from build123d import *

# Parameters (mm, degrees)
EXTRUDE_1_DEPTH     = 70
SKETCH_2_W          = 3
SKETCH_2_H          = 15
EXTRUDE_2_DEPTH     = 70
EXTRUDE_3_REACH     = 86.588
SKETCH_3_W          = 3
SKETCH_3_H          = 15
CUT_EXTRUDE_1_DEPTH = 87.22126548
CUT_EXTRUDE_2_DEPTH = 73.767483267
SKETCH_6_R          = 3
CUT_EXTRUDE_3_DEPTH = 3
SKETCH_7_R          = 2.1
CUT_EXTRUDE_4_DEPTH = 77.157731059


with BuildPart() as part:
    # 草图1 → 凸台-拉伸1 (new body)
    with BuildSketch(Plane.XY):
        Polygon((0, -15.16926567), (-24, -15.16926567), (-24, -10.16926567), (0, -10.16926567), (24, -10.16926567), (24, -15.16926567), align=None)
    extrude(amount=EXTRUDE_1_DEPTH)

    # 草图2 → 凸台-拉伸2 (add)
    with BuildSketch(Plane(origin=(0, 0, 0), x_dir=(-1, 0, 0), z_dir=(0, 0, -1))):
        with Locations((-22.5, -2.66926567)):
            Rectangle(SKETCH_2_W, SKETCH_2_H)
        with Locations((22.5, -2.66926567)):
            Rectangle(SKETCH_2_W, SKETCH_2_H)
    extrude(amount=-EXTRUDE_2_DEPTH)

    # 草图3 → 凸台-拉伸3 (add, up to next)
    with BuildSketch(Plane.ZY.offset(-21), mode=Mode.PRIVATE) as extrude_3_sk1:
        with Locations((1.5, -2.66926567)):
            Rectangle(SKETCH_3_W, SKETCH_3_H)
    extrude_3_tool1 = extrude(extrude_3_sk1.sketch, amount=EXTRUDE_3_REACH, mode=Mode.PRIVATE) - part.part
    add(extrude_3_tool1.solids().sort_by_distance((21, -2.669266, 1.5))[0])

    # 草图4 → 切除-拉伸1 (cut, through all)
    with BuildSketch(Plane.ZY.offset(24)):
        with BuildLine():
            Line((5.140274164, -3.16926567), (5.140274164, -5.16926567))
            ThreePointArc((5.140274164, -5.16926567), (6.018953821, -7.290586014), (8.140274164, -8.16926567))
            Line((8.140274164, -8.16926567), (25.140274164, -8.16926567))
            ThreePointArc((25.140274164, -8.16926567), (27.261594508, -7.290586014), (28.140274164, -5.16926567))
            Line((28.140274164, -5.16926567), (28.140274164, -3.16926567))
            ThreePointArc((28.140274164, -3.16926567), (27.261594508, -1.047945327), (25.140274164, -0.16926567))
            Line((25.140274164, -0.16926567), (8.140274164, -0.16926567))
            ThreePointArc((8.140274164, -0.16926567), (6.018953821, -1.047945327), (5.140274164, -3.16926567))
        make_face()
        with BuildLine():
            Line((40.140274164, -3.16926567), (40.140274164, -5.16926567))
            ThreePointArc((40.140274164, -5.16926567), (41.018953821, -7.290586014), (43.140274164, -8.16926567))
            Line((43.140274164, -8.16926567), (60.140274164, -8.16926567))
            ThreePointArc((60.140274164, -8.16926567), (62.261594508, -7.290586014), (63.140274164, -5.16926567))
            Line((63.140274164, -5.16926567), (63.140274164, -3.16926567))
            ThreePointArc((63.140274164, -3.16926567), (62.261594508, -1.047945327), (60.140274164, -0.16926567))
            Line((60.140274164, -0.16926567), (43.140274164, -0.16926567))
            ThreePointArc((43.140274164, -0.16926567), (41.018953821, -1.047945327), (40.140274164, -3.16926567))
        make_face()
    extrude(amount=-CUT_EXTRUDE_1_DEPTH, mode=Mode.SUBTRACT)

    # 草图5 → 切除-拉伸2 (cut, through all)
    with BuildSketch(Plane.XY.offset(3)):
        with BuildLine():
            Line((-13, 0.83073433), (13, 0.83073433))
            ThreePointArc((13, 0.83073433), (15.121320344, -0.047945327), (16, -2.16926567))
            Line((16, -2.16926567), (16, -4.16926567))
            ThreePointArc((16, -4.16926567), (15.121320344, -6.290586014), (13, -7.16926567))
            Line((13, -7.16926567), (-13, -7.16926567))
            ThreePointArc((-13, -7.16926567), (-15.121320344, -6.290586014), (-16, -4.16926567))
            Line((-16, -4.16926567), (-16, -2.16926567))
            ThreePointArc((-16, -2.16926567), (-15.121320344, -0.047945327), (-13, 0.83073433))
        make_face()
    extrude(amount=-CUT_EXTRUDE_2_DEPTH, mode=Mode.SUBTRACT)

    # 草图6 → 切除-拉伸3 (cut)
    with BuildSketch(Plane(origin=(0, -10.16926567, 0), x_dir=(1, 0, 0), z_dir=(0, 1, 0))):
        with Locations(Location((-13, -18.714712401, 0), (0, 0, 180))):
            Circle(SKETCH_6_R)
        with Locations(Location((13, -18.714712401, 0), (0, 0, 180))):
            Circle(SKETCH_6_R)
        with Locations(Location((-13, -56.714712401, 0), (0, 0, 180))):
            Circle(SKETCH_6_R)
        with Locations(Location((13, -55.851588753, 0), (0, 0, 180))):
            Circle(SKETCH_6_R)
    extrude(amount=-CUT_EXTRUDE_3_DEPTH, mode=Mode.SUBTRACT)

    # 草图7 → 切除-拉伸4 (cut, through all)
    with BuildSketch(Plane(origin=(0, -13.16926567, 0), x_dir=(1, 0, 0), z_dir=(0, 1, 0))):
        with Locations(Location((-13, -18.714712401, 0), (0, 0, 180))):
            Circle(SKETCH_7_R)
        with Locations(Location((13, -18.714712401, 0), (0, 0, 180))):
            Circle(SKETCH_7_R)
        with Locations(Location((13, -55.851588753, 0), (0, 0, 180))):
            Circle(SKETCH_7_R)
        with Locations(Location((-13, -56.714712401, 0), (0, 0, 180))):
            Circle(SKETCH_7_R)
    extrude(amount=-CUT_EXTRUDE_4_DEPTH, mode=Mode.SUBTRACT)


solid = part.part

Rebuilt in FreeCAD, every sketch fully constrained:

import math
import FreeCAD as App
import Part
import Sketcher


def add_polygon(sketch, points):
    """Adds a closed chain of lines whose ends are joined by coincident constraints."""
    first, n = sketch.GeometryCount, len(points)
    for a, b in zip(points, points[1:] + points[:1]):
        sketch.addGeometry(Part.LineSegment(App.Vector(*a, 0), App.Vector(*b, 0)), False)
    for i in range(n):
        sketch.addConstraint(Sketcher.Constraint("Coincident", first + i, 2, first + (i + 1) % n, 1))

doc = App.newDocument("Part")
params = doc.addObject("Spreadsheet::Sheet", "Params")
for row, (alias, value) in enumerate([
    ("sketch1_width", "48 mm"),
    ("sketch1_height", "5 mm"),
    ("pad1_length", "70 mm"),
    ("sketch2_width", "3 mm"),
    ("sketch2_height", "15 mm"),
    ("pad2_length", "70 mm"),
    ("sketch3_width", "15 mm"),
    ("sketch3_height", "3 mm"),
    ("sketch4_radius", "3 mm"),
    ("sketch4_width", "2 mm"),
    ("sketch4_height", "17 mm"),
    ("sketch5_radius", "3 mm"),
    ("sketch5_width", "26 mm"),
    ("sketch5_height", "2 mm"),
    ("sketch6_diameter", "6 mm"),
    ("pocket3_length", "3 mm"),
    ("sketch7_diameter", "4.2 mm"),
], start=1):
    params.set(f"A{row}", alias)
    params.set(f"B{row}", "=" + value)
    params.setAlias(f"B{row}", alias)

body = doc.addObject("PartDesign::Body", "Body")

# Sketch on XY plane
sketch1 = doc.addObject("Sketcher::SketchObject", "Sketch")
body.addObject(sketch1)
sketch1.AttachmentSupport = (doc.XY_Plane, [""])
sketch1.MapMode = "FlatFace"
add_polygon(sketch1, [(-24, -15.169266), (24, -15.169266), (24, -10.169266), (-24, -10.169266)])  # lines 0-3
sketch1.addConstraint(Sketcher.Constraint("Horizontal", 0))
sketch1.addConstraint(Sketcher.Constraint("Vertical", 1))
sketch1.addConstraint(Sketcher.Constraint("Horizontal", 2))
sketch1.addConstraint(Sketcher.Constraint("Vertical", 3))
sketch1.addConstraint(Sketcher.Constraint("DistanceX", 0, 1, 0, 2, 48.0))
sketch1.addConstraint(Sketcher.Constraint("DistanceY", 1, 1, 1, 2, 5.0))
sketch1.addConstraint(Sketcher.Constraint("DistanceX", -1, 1, 0, 2, 24.0))
sketch1.addConstraint(Sketcher.Constraint("DistanceY", 0, 2, -1, 1, 15.169266))
sketch1.setExpression("Constraints[8]", "Params.sketch1_width")
sketch1.setExpression("Constraints[9]", "Params.sketch1_height")
pad1 = doc.addObject("PartDesign::Pad", "Pad")
body.addObject(pad1)
pad1.Profile = sketch1
pad1.setExpression("Length", "Params.pad1_length")

# Sketch on XY plane
sketch2 = doc.addObject("Sketcher::SketchObject", "Sketch001")
body.addObject(sketch2)
sketch2.AttachmentSupport = (doc.XY_Plane, [""])
sketch2.MapMode = "FlatFace"
add_polygon(sketch2, [(24, 4.830734), (24, -10.169266), (21, -10.169266), (21, 4.830734)])  # lines 0-3
add_polygon(sketch2, [(-21, 4.830734), (-21, -10.169266), (-24, -10.169266), (-24, 4.830734)])  # lines 4-7
sketch2.addConstraint(Sketcher.Constraint("Vertical", 0))
sketch2.addConstraint(Sketcher.Constraint("Horizontal", 1))
sketch2.addConstraint(Sketcher.Constraint("Vertical", 2))
sketch2.addConstraint(Sketcher.Constraint("Horizontal", 3))
sketch2.addConstraint(Sketcher.Constraint("Vertical", 4))
sketch2.addConstraint(Sketcher.Constraint("Horizontal", 5))
sketch2.addConstraint(Sketcher.Constraint("Vertical", 6))
sketch2.addConstraint(Sketcher.Constraint("Horizontal", 7))
sketch2.addConstraint(Sketcher.Constraint("Symmetric", 1, 2, 4, 2, -2))
sketch2.addConstraint(Sketcher.Constraint("Symmetric", 3, 2, 6, 2, -2))
sketch2.addConstraint(Sketcher.Constraint("DistanceX", 1, 2, 1, 1, 3.0))
sketch2.addConstraint(Sketcher.Constraint("DistanceY", 0, 2, 0, 1, 15.0))
sketch2.addConstraint(Sketcher.Constraint("DistanceX", -1, 1, 0, 2, 24.0))
sketch2.addConstraint(Sketcher.Constraint("DistanceY", 0, 2, -1, 1, 10.169266))
sketch2.setExpression("Constraints[18]", "Params.sketch2_width")
sketch2.setExpression("Constraints[19]", "Params.sketch2_height")
pad2 = doc.addObject("PartDesign::Pad", "Pad001")
body.addObject(pad2)
pad2.Profile = sketch2
pad2.setExpression("Length", "Params.pad2_length")

# Sketch on YZ plane
sketch3 = doc.addObject("Sketcher::SketchObject", "Sketch002")
body.addObject(sketch3)
sketch3.AttachmentSupport = (doc.YZ_Plane, [""])
sketch3.MapMode = "FlatFace"
sketch3.AttachmentOffset = App.Placement(App.Vector(0, 0, 21), App.Rotation())
add_polygon(sketch3, [(4.830734, 0), (-10.169266, 0), (-10.169266, 3), (4.830734, 3)])  # lines 0-3
sketch3.addConstraint(Sketcher.Constraint("Horizontal", 0))
sketch3.addConstraint(Sketcher.Constraint("Vertical", 1))
sketch3.addConstraint(Sketcher.Constraint("Horizontal", 2))
sketch3.addConstraint(Sketcher.Constraint("Vertical", 3))
sketch3.addConstraint(Sketcher.Constraint("PointOnObject", 0, 2, -1))
sketch3.addConstraint(Sketcher.Constraint("DistanceX", 0, 2, 0, 1, 15.0))
sketch3.addConstraint(Sketcher.Constraint("DistanceY", 1, 1, 1, 2, 3.0))
sketch3.addConstraint(Sketcher.Constraint("DistanceX", 0, 2, -1, 1, 10.169266))
sketch3.setExpression("Constraints[9]", "Params.sketch3_width")
sketch3.setExpression("Constraints[10]", "Params.sketch3_height")
pad3 = doc.addObject("PartDesign::Pad", "Pad002")
body.addObject(pad3)
pad3.Profile = sketch3
pad3.Type = "UpToFirst"
pad3.Reversed = True

# Sketch on YZ plane
sketch4 = doc.addObject("Sketcher::SketchObject", "Sketch003")
body.addObject(sketch4)
sketch4.AttachmentSupport = (doc.YZ_Plane, [""])
sketch4.MapMode = "FlatFace"
sketch4.AttachmentOffset = App.Placement(App.Vector(0, 0, -24), App.Rotation())
sketch4.addGeometry(Part.LineSegment(App.Vector(-3.169266, 5.140274, 0), App.Vector(-5.169266, 5.140274, 0)), False)
sketch4.addGeometry(Part.ArcOfCircle(Part.Circle(App.Vector(-5.169266, 8.140274, 0), App.Vector(0, 0, 1), 3), math.radians(180), math.radians(270)), False)
sketch4.addGeometry(Part.LineSegment(App.Vector(-8.169266, 8.140274, 0), App.Vector(-8.169266, 25.140274, 0)), False)
sketch4.addGeometry(Part.ArcOfCircle(Part.Circle(App.Vector(-5.169266, 25.140274, 0), App.Vector(0, 0, 1), 3), math.radians(90), math.radians(180)), False)
sketch4.addGeometry(Part.LineSegment(App.Vector(-5.169266, 28.140274, 0), App.Vector(-3.169266, 28.140274, 0)), False)
sketch4.addGeometry(Part.ArcOfCircle(Part.Circle(App.Vector(-3.169266, 25.140274, 0), App.Vector(0, 0, 1), 3), math.radians(0), math.radians(90)), False)
sketch4.addGeometry(Part.LineSegment(App.Vector(-0.169266, 25.140274, 0), App.Vector(-0.169266, 8.140274, 0)), False)
sketch4.addGeometry(Part.ArcOfCircle(Part.Circle(App.Vector(-3.169266, 8.140274, 0), App.Vector(0, 0, 1), 3), math.radians(-90), math.radians(0)), False)
sketch4.addGeometry(Part.LineSegment(App.Vector(-3.169266, 40.140274, 0), App.Vector(-5.169266, 40.140274, 0)), False)
sketch4.addGeometry(Part.ArcOfCircle(Part.Circle(App.Vector(-5.169266, 43.140274, 0), App.Vector(0, 0, 1), 3), math.radians(180), math.radians(270)), False)
sketch4.addGeometry(Part.LineSegment(App.Vector(-8.169266, 43.140274, 0), App.Vector(-8.169266, 60.140274, 0)), False)
sketch4.addGeometry(Part.ArcOfCircle(Part.Circle(App.Vector(-5.169266, 60.140274, 0), App.Vector(0, 0, 1), 3), math.radians(90), math.radians(180)), False)
sketch4.addGeometry(Part.LineSegment(App.Vector(-5.169266, 63.140274, 0), App.Vector(-3.169266, 63.140274, 0)), False)
sketch4.addGeometry(Part.ArcOfCircle(Part.Circle(App.Vector(-3.169266, 60.140274, 0), App.Vector(0, 0, 1), 3), math.radians(0), math.radians(90)), False)
sketch4.addGeometry(Part.LineSegment(App.Vector(-0.169266, 60.140274, 0), App.Vector(-0.169266, 43.140274, 0)), False)
sketch4.addGeometry(Part.ArcOfCircle(Part.Circle(App.Vector(-3.169266, 43.140274, 0), App.Vector(0, 0, 1), 3), math.radians(-90), math.radians(0)), False)
sketch4.addConstraint(Sketcher.Constraint("Tangent", 0, 2, 1, 2))
sketch4.addConstraint(Sketcher.Constraint("Tangent", 1, 1, 2, 1))
sketch4.addConstraint(Sketcher.Constraint("Tangent", 2, 2, 3, 2))
sketch4.addConstraint(Sketcher.Constraint("Tangent", 3, 1, 4, 1))
sketch4.addConstraint(Sketcher.Constraint("Tangent", 4, 2, 5, 2))
sketch4.addConstraint(Sketcher.Constraint("Tangent", 5, 1, 6, 1))
sketch4.addConstraint(Sketcher.Constraint("Tangent", 6, 2, 7, 2))
sketch4.addConstraint(Sketcher.Constraint("Tangent", 7, 1, 0, 1))
sketch4.addConstraint(Sketcher.Constraint("Tangent", 8, 2, 9, 2))
sketch4.addConstraint(Sketcher.Constraint("Tangent", 9, 1, 10, 1))
sketch4.addConstraint(Sketcher.Constraint("Tangent", 10, 2, 11, 2))
sketch4.addConstraint(Sketcher.Constraint("Tangent", 11, 1, 12, 1))
sketch4.addConstraint(Sketcher.Constraint("Tangent", 12, 2, 13, 2))
sketch4.addConstraint(Sketcher.Constraint("Tangent", 13, 1, 14, 1))
sketch4.addConstraint(Sketcher.Constraint("Tangent", 14, 2, 15, 2))
sketch4.addConstraint(Sketcher.Constraint("Tangent", 15, 1, 8, 1))
sketch4.addConstraint(Sketcher.Constraint("Horizontal", 0))
sketch4.addConstraint(Sketcher.Constraint("Vertical", 2))
sketch4.addConstraint(Sketcher.Constraint("Horizontal", 4))
sketch4.addConstraint(Sketcher.Constraint("Vertical", 6))
sketch4.addConstraint(Sketcher.Constraint("Horizontal", 8))
sketch4.addConstraint(Sketcher.Constraint("Vertical", 10))
sketch4.addConstraint(Sketcher.Constraint("Horizontal", 12))
sketch4.addConstraint(Sketcher.Constraint("Vertical", 14))
sketch4.addConstraint(Sketcher.Constraint("Equal", 1, 3))
sketch4.addConstraint(Sketcher.Constraint("Equal", 3, 5))
sketch4.addConstraint(Sketcher.Constraint("Equal", 5, 7))
sketch4.addConstraint(Sketcher.Constraint("Equal", 7, 9))
sketch4.addConstraint(Sketcher.Constraint("Equal", 9, 11))
sketch4.addConstraint(Sketcher.Constraint("Equal", 11, 13))
sketch4.addConstraint(Sketcher.Constraint("Equal", 13, 15))
sketch4.addConstraint(Sketcher.Constraint("Vertical", 3, 3, 9, 3))
sketch4.addConstraint(Sketcher.Constraint("Vertical", 7, 3, 13, 3))
sketch4.addConstraint(Sketcher.Constraint("Equal", 6, 10))
sketch4.addConstraint(Sketcher.Constraint("Radius", 1, 3.0))
sketch4.addConstraint(Sketcher.Constraint("DistanceX", 0, 2, 0, 1, 2.0))
sketch4.addConstraint(Sketcher.Constraint("DistanceY", 2, 1, 2, 2, 17.0))
sketch4.addConstraint(Sketcher.Constraint("DistanceY", 3, 3, 9, 3, 18.0))
sketch4.addConstraint(Sketcher.Constraint("DistanceX", 1, 3, -1, 1, 5.169266))
sketch4.addConstraint(Sketcher.Constraint("DistanceY", -1, 1, 1, 3, 8.140274))
sketch4.setExpression("Constraints[34]", "Params.sketch4_radius")
sketch4.setExpression("Constraints[35]", "Params.sketch4_width")
sketch4.setExpression("Constraints[36]", "Params.sketch4_height")
pocket1 = doc.addObject("PartDesign::Pocket", "Pocket")
body.addObject(pocket1)
pocket1.Profile = sketch4
pocket1.Type = "ThroughAll"
pocket1.Reversed = True

# Sketch on XY plane
sketch5 = doc.addObject("Sketcher::SketchObject", "Sketch004")
body.addObject(sketch5)
sketch5.AttachmentSupport = (doc.XY_Plane, [""])
sketch5.MapMode = "FlatFace"
sketch5.AttachmentOffset = App.Placement(App.Vector(0, 0, 3), App.Rotation())
sketch5.addGeometry(Part.LineSegment(App.Vector(13, 0.830734, 0), App.Vector(-13, 0.830734, 0)), False)
sketch5.addGeometry(Part.ArcOfCircle(Part.Circle(App.Vector(-13, -2.169266, 0), App.Vector(0, 0, 1), 3), math.radians(90), math.radians(180)), False)
sketch5.addGeometry(Part.LineSegment(App.Vector(-16, -2.169266, 0), App.Vector(-16, -4.169266, 0)), False)
sketch5.addGeometry(Part.ArcOfCircle(Part.Circle(App.Vector(-13, -4.169266, 0), App.Vector(0, 0, 1), 3), math.radians(180), math.radians(270)), False)
sketch5.addGeometry(Part.LineSegment(App.Vector(-13, -7.169266, 0), App.Vector(13, -7.169266, 0)), False)
sketch5.addGeometry(Part.ArcOfCircle(Part.Circle(App.Vector(13, -4.169266, 0), App.Vector(0, 0, 1), 3), math.radians(-90), math.radians(0)), False)
sketch5.addGeometry(Part.LineSegment(App.Vector(16, -4.169266, 0), App.Vector(16, -2.169266, 0)), False)
sketch5.addGeometry(Part.ArcOfCircle(Part.Circle(App.Vector(13, -2.169266, 0), App.Vector(0, 0, 1), 3), math.radians(0), math.radians(90)), False)
sketch5.addConstraint(Sketcher.Constraint("Tangent", 0, 2, 1, 1))
sketch5.addConstraint(Sketcher.Constraint("Tangent", 1, 2, 2, 1))
sketch5.addConstraint(Sketcher.Constraint("Tangent", 2, 2, 3, 1))
sketch5.addConstraint(Sketcher.Constraint("Tangent", 3, 2, 4, 1))
sketch5.addConstraint(Sketcher.Constraint("Tangent", 4, 2, 5, 1))
sketch5.addConstraint(Sketcher.Constraint("Tangent", 5, 2, 6, 1))
sketch5.addConstraint(Sketcher.Constraint("Tangent", 6, 2, 7, 1))
sketch5.addConstraint(Sketcher.Constraint("Tangent", 7, 2, 0, 1))
sketch5.addConstraint(Sketcher.Constraint("Horizontal", 0))
sketch5.addConstraint(Sketcher.Constraint("Vertical", 2))
sketch5.addConstraint(Sketcher.Constraint("Horizontal", 4))
sketch5.addConstraint(Sketcher.Constraint("Vertical", 6))
sketch5.addConstraint(Sketcher.Constraint("Equal", 1, 3))
sketch5.addConstraint(Sketcher.Constraint("Equal", 3, 5))
sketch5.addConstraint(Sketcher.Constraint("Equal", 5, 7))
sketch5.addConstraint(Sketcher.Constraint("Radius", 1, 3.0))
sketch5.addConstraint(Sketcher.Constraint("DistanceX", 0, 2, 0, 1, 26.0))
sketch5.addConstraint(Sketcher.Constraint("DistanceY", 2, 2, 2, 1, 2.0))
sketch5.addConstraint(Sketcher.Constraint("DistanceX", 1, 3, -1, 1, 13.0))
sketch5.addConstraint(Sketcher.Constraint("DistanceY", 1, 3, -1, 1, 2.169266))
sketch5.setExpression("Constraints[15]", "Params.sketch5_radius")
sketch5.setExpression("Constraints[16]", "Params.sketch5_width")
sketch5.setExpression("Constraints[17]", "Params.sketch5_height")
pocket2 = doc.addObject("PartDesign::Pocket", "Pocket001")
body.addObject(pocket2)
pocket2.Profile = sketch5
pocket2.Type = "ThroughAll"

# Sketch on XZ plane
sketch6 = doc.addObject("Sketcher::SketchObject", "Sketch005")
body.addObject(sketch6)
sketch6.AttachmentSupport = (doc.XZ_Plane, [""])
sketch6.MapMode = "FlatFace"
sketch6.AttachmentOffset = App.Placement(App.Vector(0, 0, 10.169266), App.Rotation())
sketch6.addGeometry(Part.Circle(App.Vector(-13, 18.714712, 0), App.Vector(0, 0, 1), 3), False)
sketch6.addGeometry(Part.Circle(App.Vector(13, 18.714712, 0), App.Vector(0, 0, 1), 3), False)
sketch6.addGeometry(Part.Circle(App.Vector(-13, 56.714712, 0), App.Vector(0, 0, 1), 3), False)
sketch6.addGeometry(Part.Circle(App.Vector(13, 55.851589, 0), App.Vector(0, 0, 1), 3), False)
sketch6.addConstraint(Sketcher.Constraint("Equal", 0, 1))
sketch6.addConstraint(Sketcher.Constraint("Equal", 1, 2))
sketch6.addConstraint(Sketcher.Constraint("Equal", 2, 3))
sketch6.addConstraint(Sketcher.Constraint("Symmetric", 0, 3, 1, 3, -2))
sketch6.addConstraint(Sketcher.Constraint("Vertical", 0, 3, 2, 3))
sketch6.addConstraint(Sketcher.Constraint("Vertical", 1, 3, 3, 3))
sketch6.addConstraint(Sketcher.Constraint("Diameter", 0, 6.0))
sketch6.addConstraint(Sketcher.Constraint("DistanceX", 0, 3, -1, 1, 13.0))
sketch6.addConstraint(Sketcher.Constraint("DistanceY", 0, 3, 2, 3, 38.0))
sketch6.addConstraint(Sketcher.Constraint("DistanceY", -1, 1, 3, 3, 55.851589))
sketch6.addConstraint(Sketcher.Constraint("DistanceY", -1, 1, 0, 3, 18.714712))
sketch6.setExpression("Constraints[6]", "Params.sketch6_diameter")
pocket3 = doc.addObject("PartDesign::Pocket", "Pocket002")
body.addObject(pocket3)
pocket3.Profile = sketch6
pocket3.setExpression("Length", "Params.pocket3_length")
pocket3.Reversed = True

# Sketch on XZ plane
sketch7 = doc.addObject("Sketcher::SketchObject", "Sketch006")
body.addObject(sketch7)
sketch7.AttachmentSupport = (doc.XZ_Plane, [""])
sketch7.MapMode = "FlatFace"
sketch7.AttachmentOffset = App.Placement(App.Vector(0, 0, 13.169266), App.Rotation())
sketch7.addGeometry(Part.Circle(App.Vector(-13, 18.714712, 0), App.Vector(0, 0, 1), 2.1), False)
sketch7.addGeometry(Part.Circle(App.Vector(13, 18.714712, 0), App.Vector(0, 0, 1), 2.1), False)
sketch7.addGeometry(Part.Circle(App.Vector(13, 55.851589, 0), App.Vector(0, 0, 1), 2.1), False)
sketch7.addGeometry(Part.Circle(App.Vector(-13, 56.714712, 0), App.Vector(0, 0, 1), 2.1), False)
sketch7.addConstraint(Sketcher.Constraint("Equal", 0, 1))
sketch7.addConstraint(Sketcher.Constraint("Equal", 1, 2))
sketch7.addConstraint(Sketcher.Constraint("Equal", 2, 3))
sketch7.addConstraint(Sketcher.Constraint("Symmetric", 0, 3, 1, 3, -2))
sketch7.addConstraint(Sketcher.Constraint("Vertical", 1, 3, 2, 3))
sketch7.addConstraint(Sketcher.Constraint("Vertical", 0, 3, 3, 3))
sketch7.addConstraint(Sketcher.Constraint("Diameter", 0, 4.2))
sketch7.addConstraint(Sketcher.Constraint("DistanceX", 0, 3, -1, 1, 13.0))
sketch7.addConstraint(Sketcher.Constraint("DistanceY", 0, 3, 3, 3, 38.0))
sketch7.addConstraint(Sketcher.Constraint("DistanceY", -1, 1, 2, 3, 55.851589))
sketch7.addConstraint(Sketcher.Constraint("DistanceY", -1, 1, 0, 3, 18.714712))
sketch7.setExpression("Constraints[6]", "Params.sketch7_diameter")
pocket4 = doc.addObject("PartDesign::Pocket", "Pocket003")
body.addObject(pocket4)
pocket4.Profile = sketch7
pocket4.Type = "ThroughAll"
pocket4.Reversed = True

doc.recompute()
